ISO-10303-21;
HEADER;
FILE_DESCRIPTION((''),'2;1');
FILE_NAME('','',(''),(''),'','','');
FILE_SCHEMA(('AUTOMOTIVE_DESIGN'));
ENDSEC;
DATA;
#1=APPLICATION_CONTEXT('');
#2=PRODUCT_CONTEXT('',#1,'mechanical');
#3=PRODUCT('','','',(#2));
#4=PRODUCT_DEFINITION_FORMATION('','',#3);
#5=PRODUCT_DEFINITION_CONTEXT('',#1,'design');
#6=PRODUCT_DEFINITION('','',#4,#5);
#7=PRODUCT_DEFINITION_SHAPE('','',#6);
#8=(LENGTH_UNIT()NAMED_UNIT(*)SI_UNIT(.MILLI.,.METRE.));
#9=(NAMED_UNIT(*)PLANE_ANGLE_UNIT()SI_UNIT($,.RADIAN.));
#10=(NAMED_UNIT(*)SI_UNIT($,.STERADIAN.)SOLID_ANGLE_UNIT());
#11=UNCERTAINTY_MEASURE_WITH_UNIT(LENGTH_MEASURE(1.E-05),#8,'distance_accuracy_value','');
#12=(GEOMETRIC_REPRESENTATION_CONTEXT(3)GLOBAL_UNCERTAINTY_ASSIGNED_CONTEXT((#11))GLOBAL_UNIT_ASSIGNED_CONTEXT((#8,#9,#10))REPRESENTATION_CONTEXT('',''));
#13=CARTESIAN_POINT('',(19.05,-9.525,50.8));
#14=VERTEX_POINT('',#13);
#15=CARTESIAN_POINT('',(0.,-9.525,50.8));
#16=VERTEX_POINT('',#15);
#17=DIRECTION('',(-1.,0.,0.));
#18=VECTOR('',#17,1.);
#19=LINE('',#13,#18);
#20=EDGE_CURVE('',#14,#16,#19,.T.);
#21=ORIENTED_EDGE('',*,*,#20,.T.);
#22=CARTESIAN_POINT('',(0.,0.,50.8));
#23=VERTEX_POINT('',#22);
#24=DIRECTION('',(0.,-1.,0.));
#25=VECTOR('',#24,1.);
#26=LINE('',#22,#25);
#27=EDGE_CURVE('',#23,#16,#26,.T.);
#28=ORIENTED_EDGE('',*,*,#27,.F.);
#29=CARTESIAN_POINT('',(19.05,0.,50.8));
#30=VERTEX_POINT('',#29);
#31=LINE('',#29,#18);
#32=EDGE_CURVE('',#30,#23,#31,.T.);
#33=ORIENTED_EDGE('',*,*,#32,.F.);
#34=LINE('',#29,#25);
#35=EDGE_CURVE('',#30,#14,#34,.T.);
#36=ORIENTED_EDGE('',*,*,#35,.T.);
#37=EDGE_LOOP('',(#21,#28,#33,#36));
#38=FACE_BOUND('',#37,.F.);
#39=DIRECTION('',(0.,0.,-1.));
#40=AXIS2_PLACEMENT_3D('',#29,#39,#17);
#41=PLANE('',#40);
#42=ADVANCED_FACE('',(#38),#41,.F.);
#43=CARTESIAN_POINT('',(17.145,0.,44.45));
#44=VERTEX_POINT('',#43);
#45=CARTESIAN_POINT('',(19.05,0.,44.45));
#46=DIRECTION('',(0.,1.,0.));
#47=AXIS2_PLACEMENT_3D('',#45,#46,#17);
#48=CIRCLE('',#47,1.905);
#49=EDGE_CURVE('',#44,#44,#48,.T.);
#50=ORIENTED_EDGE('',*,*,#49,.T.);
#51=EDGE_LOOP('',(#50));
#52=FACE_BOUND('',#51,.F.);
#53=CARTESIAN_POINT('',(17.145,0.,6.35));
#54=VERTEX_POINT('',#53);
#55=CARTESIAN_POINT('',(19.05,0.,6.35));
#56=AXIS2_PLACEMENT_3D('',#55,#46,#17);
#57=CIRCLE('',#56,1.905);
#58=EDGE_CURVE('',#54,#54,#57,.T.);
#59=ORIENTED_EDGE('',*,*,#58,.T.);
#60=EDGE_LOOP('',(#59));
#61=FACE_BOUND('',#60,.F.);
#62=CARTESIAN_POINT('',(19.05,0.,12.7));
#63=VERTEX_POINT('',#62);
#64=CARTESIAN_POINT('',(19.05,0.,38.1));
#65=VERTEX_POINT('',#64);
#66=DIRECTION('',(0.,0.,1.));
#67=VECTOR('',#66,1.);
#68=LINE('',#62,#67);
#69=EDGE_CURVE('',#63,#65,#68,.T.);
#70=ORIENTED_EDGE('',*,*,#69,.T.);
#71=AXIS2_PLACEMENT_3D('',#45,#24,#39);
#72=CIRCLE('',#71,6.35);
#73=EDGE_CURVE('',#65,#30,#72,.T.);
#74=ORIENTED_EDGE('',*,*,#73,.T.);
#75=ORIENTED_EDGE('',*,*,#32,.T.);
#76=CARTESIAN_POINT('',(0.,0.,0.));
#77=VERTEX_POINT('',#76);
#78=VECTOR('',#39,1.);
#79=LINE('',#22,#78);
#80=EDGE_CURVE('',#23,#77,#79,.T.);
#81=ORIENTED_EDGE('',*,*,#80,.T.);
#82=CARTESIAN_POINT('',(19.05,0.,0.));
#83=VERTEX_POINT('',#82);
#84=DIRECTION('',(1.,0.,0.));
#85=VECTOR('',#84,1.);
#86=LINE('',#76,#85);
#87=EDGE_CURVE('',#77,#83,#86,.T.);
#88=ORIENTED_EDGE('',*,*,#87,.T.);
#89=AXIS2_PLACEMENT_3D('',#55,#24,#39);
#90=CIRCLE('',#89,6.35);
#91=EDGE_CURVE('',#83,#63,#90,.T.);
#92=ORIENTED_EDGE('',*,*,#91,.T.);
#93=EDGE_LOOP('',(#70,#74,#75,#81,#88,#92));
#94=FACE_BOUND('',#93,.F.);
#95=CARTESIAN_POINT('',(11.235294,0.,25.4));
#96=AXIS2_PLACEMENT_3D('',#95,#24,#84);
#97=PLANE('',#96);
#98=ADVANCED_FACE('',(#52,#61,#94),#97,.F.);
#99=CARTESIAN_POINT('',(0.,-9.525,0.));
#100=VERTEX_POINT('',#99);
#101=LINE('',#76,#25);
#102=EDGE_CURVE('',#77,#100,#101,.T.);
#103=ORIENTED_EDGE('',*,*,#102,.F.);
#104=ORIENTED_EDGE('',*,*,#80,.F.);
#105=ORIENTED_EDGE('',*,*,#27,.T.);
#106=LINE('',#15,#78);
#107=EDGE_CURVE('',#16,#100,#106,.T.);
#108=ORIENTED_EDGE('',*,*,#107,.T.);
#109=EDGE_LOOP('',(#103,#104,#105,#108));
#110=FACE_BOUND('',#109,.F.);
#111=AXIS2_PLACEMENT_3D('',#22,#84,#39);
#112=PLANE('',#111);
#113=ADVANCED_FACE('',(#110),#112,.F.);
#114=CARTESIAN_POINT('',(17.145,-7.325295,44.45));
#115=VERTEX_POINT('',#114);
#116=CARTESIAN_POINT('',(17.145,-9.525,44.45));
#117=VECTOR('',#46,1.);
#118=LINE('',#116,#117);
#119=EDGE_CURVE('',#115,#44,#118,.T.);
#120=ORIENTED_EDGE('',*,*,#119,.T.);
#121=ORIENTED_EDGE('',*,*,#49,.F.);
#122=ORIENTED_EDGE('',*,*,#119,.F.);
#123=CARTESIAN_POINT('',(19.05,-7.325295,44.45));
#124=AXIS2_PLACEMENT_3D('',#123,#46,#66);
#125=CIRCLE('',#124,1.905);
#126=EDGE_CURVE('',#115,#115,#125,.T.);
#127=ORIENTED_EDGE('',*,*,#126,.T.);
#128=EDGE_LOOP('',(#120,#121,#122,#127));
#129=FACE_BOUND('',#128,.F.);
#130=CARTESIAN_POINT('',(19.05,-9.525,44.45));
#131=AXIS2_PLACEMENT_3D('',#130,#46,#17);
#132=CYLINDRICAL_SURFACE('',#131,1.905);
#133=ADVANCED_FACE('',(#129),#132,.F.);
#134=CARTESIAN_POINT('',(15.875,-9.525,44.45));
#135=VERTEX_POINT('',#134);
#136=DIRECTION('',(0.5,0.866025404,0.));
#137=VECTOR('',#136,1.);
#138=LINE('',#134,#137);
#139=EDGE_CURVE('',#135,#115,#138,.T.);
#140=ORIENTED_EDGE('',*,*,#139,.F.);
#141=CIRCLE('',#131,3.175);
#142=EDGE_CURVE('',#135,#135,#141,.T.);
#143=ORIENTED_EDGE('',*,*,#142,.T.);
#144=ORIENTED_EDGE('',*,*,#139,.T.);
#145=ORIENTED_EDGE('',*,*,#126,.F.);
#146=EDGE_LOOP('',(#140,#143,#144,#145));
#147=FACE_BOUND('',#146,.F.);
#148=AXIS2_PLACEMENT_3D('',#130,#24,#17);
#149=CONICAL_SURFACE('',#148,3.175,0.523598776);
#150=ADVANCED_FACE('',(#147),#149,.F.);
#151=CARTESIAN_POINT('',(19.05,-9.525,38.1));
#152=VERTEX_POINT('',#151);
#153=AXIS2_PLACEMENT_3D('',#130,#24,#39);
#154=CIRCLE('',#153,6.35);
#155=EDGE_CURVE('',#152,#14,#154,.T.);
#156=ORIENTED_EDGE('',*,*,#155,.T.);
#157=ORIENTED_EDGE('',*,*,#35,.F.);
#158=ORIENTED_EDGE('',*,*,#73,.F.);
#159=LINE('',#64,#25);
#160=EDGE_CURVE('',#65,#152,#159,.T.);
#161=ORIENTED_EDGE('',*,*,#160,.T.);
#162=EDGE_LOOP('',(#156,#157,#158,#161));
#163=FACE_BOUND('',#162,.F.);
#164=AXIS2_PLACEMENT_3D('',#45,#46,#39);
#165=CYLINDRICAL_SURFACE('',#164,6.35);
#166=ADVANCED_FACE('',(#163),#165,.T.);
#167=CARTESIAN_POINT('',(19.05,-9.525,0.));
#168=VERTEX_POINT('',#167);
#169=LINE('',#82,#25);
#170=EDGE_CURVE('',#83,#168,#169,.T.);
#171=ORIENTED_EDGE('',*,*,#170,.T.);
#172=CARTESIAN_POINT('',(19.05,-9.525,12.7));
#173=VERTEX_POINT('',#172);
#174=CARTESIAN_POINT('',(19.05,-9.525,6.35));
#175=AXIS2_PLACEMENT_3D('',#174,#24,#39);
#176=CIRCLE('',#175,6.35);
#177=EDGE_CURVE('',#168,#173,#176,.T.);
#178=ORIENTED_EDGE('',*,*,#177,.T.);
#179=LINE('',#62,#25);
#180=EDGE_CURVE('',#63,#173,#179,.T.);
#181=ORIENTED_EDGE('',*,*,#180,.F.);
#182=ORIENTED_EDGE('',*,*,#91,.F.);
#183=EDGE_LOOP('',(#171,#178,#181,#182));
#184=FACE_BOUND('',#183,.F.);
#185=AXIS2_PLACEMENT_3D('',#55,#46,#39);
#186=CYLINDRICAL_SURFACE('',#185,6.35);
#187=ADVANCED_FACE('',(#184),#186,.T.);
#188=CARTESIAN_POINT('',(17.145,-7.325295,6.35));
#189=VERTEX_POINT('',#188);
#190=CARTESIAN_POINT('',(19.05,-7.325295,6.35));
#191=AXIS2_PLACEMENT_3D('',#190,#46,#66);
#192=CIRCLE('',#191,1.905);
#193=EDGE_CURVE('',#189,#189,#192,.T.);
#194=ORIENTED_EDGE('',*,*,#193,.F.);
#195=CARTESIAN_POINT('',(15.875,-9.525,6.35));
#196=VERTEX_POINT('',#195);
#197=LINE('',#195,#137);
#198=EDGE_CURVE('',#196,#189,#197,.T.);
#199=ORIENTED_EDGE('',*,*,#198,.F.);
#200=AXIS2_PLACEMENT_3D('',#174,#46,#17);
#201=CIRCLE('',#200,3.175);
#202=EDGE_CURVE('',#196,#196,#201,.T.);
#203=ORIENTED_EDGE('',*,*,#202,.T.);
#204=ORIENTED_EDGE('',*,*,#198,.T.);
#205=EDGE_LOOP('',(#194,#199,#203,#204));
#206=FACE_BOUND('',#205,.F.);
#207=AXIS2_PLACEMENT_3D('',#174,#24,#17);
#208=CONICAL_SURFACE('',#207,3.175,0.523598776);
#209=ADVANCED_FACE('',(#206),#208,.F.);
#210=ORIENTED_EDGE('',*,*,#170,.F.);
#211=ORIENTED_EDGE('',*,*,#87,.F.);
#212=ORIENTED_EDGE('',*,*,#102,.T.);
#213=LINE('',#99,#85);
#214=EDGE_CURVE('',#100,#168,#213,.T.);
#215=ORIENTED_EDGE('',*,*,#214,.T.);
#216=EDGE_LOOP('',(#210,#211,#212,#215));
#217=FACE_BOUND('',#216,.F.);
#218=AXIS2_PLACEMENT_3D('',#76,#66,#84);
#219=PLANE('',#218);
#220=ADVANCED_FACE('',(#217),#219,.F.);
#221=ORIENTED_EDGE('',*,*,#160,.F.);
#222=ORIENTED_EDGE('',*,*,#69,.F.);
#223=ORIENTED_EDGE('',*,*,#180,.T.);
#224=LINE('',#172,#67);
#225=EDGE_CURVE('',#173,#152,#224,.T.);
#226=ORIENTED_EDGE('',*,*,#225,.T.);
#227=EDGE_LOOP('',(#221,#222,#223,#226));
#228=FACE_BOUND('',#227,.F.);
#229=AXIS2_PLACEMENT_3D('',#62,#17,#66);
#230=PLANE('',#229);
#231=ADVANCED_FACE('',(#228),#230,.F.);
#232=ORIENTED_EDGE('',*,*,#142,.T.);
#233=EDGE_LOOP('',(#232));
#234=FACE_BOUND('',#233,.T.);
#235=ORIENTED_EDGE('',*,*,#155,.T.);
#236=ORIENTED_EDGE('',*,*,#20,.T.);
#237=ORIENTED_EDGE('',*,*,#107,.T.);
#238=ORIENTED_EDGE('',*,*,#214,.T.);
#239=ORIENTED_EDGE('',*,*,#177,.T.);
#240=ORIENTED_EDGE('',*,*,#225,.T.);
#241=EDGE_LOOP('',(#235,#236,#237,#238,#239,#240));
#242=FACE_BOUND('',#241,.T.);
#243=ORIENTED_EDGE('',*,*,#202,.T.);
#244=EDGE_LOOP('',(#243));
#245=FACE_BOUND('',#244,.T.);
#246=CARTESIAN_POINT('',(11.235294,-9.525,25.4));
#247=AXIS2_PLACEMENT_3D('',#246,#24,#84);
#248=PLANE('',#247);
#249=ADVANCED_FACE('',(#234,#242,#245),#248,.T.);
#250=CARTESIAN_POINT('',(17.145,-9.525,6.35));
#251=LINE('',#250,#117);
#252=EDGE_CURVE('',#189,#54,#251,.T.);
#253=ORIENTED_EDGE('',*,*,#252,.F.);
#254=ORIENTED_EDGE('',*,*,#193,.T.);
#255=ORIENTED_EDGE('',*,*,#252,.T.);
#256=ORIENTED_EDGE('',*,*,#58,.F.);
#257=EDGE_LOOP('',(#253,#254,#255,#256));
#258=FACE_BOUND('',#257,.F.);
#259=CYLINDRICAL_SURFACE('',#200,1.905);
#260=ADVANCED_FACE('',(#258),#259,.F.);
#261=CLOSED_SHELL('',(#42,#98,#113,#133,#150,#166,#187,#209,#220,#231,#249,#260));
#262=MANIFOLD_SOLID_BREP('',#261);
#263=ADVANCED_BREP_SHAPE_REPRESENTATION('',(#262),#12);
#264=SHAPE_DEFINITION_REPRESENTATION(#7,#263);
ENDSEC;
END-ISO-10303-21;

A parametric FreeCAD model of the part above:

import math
import FreeCAD as App
import Part
import Sketcher
from FreeCAD import Vector
Q = App.Units.Quantity

doc = App.newDocument("Part")
body = doc.addObject("PartDesign::Body", "Body")

sketch1 = body.newObject("Sketcher::SketchObject", "Sketch")
sketch1.AttachmentSupport = (doc.getObject("XZ_Plane"), [""])
sketch1.MapMode = "FlatFace"
sketch1.addGeometry([
    Part.LineSegment(Vector(0, 51, 0), Vector(0, 0, 0)),
    Part.LineSegment(Vector(0, 0, 0), Vector(19, 0, 0)),
    Part.ArcOfCircle(Part.Circle(Vector(19, 6, 0), Vector(0, 0, 1), 6), math.radians(-90), math.radians(90)),
    Part.LineSegment(Vector(19, 13, 0), Vector(19, 38, 0)),
    Part.ArcOfCircle(Part.Circle(Vector(19, 44, 0), Vector(0, 0, 1), 6), math.radians(-90), math.radians(90)),
    Part.LineSegment(Vector(19, 51, 0), Vector(0, 51, 0)),
], False)
sketch1.addConstraint([
    Sketcher.Constraint("Coincident", 0, 2, 1, 1),
    Sketcher.Constraint("Tangent", 1, 2, 2, 1),
    Sketcher.Constraint("Coincident", 2, 2, 3, 1),
    Sketcher.Constraint("Coincident", 3, 2, 4, 1),
    Sketcher.Constraint("Tangent", 4, 2, 5, 1),
    Sketcher.Constraint("Coincident", 5, 2, 0, 1),
    Sketcher.Constraint("Vertical", 0),
    Sketcher.Constraint("Horizontal", 1),
    Sketcher.Constraint("Vertical", 3),
    Sketcher.Constraint("Horizontal", 5),
    Sketcher.Constraint("Coincident", 0, 2, -1, 1),
    Sketcher.Constraint("Equal", 2, 4),
    Sketcher.Constraint("Vertical", 2, 3, 4, 3),
    Sketcher.Constraint("Vertical", 1, 2, 2, 2),
    Sketcher.Constraint("DistanceY", 0, 2, 0, 1, Q("2 in")),
    Sketcher.Constraint("DistanceY", 3, 1, 3, 2, Q("1 in")),
    Sketcher.Constraint("DistanceX", 1, 1, 1, 2, Q("0.75 in")),
])
pad1 = body.newObject("PartDesign::Pad", "Pad")
pad1.Profile = sketch1
pad1.Length = Q("0.375 in")

sketch2 = body.newObject("Sketcher::SketchObject", "Sketch001")
sketch2.AttachmentSupport = (doc.getObject("XZ_Plane"), [""])
sketch2.MapMode = "FlatFace"
sketch2.AttachmentOffset = App.Placement(Vector(0, 0, 0.375 * 25.4), App.Rotation())
sketch2.addGeometry([
    Part.Circle(Vector(19.1, 44.5, 0), Vector(0, 0, 1), 1.9),
    Part.Circle(Vector(19.1, 6.3, 0), Vector(0, 0, 1), 1.9),
], False)
sketch2.addConstraint([
    Sketcher.Constraint("Equal", 0, 1),
    Sketcher.Constraint("Vertical", 0, 3, 1, 3),
    Sketcher.Constraint("Diameter", 0, Q("0.15 in")),
    Sketcher.Constraint("DistanceY", 1, 3, 0, 3, Q("1.5 in")),
    Sketcher.Constraint("DistanceX", -1, 1, 0, 3, Q("0.75 in")),
    Sketcher.Constraint("DistanceY", -1, 1, 0, 3, Q("1.75 in")),
])
doc.recompute()
hole = body.newObject("PartDesign::Hole", "Hole")
hole.Profile = sketch2
hole.ThreadType = "None"
hole.Diameter = Q("0.15 in")
hole.DepthType = "ThroughAll"
hole.HoleCutType = "Countersink"
hole.HoleCutDiameter = Q("0.25 in")
hole.HoleCutCountersinkAngle = 60

doc.recompute()
